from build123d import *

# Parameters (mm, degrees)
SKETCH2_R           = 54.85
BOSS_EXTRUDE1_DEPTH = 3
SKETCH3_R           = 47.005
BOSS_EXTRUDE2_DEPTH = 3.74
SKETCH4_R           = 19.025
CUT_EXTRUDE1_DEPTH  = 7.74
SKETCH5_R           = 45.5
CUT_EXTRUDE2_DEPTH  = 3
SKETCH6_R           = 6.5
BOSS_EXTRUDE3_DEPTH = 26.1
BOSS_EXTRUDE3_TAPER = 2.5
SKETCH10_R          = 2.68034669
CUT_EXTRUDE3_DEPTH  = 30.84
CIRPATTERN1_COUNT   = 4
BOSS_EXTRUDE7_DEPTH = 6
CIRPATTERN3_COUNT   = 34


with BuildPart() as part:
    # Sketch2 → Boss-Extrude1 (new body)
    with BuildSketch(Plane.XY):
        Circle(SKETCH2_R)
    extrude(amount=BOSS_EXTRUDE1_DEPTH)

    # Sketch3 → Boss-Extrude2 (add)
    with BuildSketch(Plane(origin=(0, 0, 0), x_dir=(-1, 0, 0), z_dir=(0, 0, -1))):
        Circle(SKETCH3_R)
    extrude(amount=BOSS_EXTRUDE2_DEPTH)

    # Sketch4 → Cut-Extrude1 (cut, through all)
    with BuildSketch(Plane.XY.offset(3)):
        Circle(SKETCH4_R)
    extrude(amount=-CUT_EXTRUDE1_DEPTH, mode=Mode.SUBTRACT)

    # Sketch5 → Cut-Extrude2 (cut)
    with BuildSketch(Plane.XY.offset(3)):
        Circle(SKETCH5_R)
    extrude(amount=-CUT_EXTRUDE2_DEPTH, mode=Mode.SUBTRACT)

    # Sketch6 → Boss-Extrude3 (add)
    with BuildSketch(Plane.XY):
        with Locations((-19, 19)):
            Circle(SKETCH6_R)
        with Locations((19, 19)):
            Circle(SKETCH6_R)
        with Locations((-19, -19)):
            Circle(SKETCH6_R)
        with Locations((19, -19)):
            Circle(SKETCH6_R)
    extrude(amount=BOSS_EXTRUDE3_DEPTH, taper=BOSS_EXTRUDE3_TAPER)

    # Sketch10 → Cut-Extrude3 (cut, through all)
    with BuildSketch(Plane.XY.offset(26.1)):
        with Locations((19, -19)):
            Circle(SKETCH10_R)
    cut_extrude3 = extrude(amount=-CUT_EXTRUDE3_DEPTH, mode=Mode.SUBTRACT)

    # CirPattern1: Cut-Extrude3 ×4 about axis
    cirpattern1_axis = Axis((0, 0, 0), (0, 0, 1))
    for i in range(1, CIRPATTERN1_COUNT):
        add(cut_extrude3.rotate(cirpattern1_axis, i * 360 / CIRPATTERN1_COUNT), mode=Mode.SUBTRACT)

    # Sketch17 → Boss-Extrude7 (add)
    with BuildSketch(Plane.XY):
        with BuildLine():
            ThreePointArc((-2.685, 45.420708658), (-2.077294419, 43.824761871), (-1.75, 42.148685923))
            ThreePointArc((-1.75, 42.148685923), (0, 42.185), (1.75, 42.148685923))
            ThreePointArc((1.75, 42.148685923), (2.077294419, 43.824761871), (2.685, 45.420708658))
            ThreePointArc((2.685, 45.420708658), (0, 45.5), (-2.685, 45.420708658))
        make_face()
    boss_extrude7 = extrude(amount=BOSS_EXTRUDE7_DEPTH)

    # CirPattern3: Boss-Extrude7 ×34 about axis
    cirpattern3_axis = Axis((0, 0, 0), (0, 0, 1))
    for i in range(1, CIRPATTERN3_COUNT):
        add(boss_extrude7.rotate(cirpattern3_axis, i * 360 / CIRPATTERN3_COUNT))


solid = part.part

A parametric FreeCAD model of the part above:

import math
import FreeCAD as App
import Part
import Sketcher
Q = App.Units.Quantity

doc = App.newDocument("Part")
body = doc.addObject("PartDesign::Body", "Body")

sketch1 = body.newObject("Sketcher::SketchObject", "Sketch")
sketch1.AttachmentSupport = (doc.getObject("XY_Plane"), [""])
sketch1.MapMode = "FlatFace"
sketch1.addGeometry(Part.Circle(App.Vector(0, 0, 0), App.Vector(0, 0, 1), 55), False)
sketch1.addConstraint([
    Sketcher.Constraint("Coincident", 0, 3, -1, 1),
    Sketcher.Constraint("Diameter", 0, Q("109.7 mm")),
])
pad1 = body.newObject("PartDesign::Pad", "Pad")
pad1.Profile = sketch1
pad1.Length = 3

sketch2 = body.newObject("Sketcher::SketchObject", "Sketch001")
sketch2.AttachmentSupport = (doc.getObject("XY_Plane"), [""])
sketch2.MapMode = "FlatFace"
sketch2.addGeometry(Part.Circle(App.Vector(0, 0, 0), App.Vector(0, 0, 1), 47), False)
sketch2.addConstraint([
    Sketcher.Constraint("Coincident", 0, 3, -1, 1),
    Sketcher.Constraint("Diameter", 0, Q("94.01 mm")),
])
pad2 = body.newObject("PartDesign::Pad", "Pad001")
pad2.Profile = sketch2
pad2.Length = 3.74
pad2.Reversed = True

sketch3 = body.newObject("Sketcher::SketchObject", "Sketch002")
sketch3.AttachmentSupport = (doc.getObject("XY_Plane"), [""])
sketch3.MapMode = "FlatFace"
sketch3.AttachmentOffset = App.Placement(App.Vector(0, 0, 3), App.Rotation())
sketch3.addGeometry(Part.Circle(App.Vector(0, 0, 0), App.Vector(0, 0, 1), 19), False)
sketch3.addConstraint([
    Sketcher.Constraint("Coincident", 0, 3, -1, 1),
    Sketcher.Constraint("Diameter", 0, Q("38.05 mm")),
])
pocket1 = body.newObject("PartDesign::Pocket", "Pocket")
pocket1.Profile = sketch3
pocket1.Type = "ThroughAll"

sketch4 = body.newObject("Sketcher::SketchObject", "Sketch003")
sketch4.AttachmentSupport = (doc.getObject("XY_Plane"), [""])
sketch4.MapMode = "FlatFace"
sketch4.AttachmentOffset = App.Placement(App.Vector(0, 0, 3), App.Rotation())
sketch4.addGeometry(Part.Circle(App.Vector(0, 0, 0), App.Vector(0, 0, 1), 46), False)
sketch4.addConstraint([
    Sketcher.Constraint("Coincident", 0, 3, -1, 1),
    Sketcher.Constraint("Diameter", 0, Q("91 mm")),
])
pocket2 = body.newObject("PartDesign::Pocket", "Pocket001")
pocket2.Profile = sketch4
pocket2.Length = 3

sketch5 = body.newObject("Sketcher::SketchObject", "Sketch004")
sketch5.AttachmentSupport = (doc.getObject("XY_Plane"), [""])
sketch5.MapMode = "FlatFace"
sketch5.addGeometry([
    Part.Circle(App.Vector(-19, 19, 0), App.Vector(0, 0, 1), 6),
    Part.Circle(App.Vector(19, 19, 0), App.Vector(0, 0, 1), 6),
    Part.Circle(App.Vector(-19, -19, 0), App.Vector(0, 0, 1), 6),
    Part.Circle(App.Vector(19, -19, 0), App.Vector(0, 0, 1), 6),
], False)
sketch5.addConstraint([
    Sketcher.Constraint("Equal", 0, 1),
    Sketcher.Constraint("Equal", 1, 2),
    Sketcher.Constraint("Equal", 2, 3),
    Sketcher.Constraint("Symmetric", 1, 3, 2, 3, -1, 1),
    Sketcher.Constraint("Symmetric", 0, 3, 3, 3, -1, 1),
    Sketcher.Constraint("Symmetric", 0, 3, 1, 3, -2),
    Sketcher.Constraint("Diameter", 0, Q("13 mm")),
    Sketcher.Constraint("DistanceX", 0, 3, -1, 1, Q("19 mm")),
    Sketcher.Constraint("DistanceY", -1, 1, 0, 3, Q("19 mm")),
])
pad3 = body.newObject("PartDesign::Pad", "Pad002")
pad3.Profile = sketch5
pad3.Length = 26.1
pad3.TaperAngle = -2.5

sketch6 = body.newObject("Sketcher::SketchObject", "Sketch005")
sketch6.AttachmentSupport = (doc.getObject("XY_Plane"), [""])
sketch6.MapMode = "FlatFace"
sketch6.AttachmentOffset = App.Placement(App.Vector(0, 0, 26.1), App.Rotation())
sketch6.addGeometry(Part.Circle(App.Vector(19, -19, 0), App.Vector(0, 0, 1), 2.7), False)
sketch6.addConstraint([
    Sketcher.Constraint("DistanceX", -1, 1, 0, 3, Q("19 mm")),
    Sketcher.Constraint("DistanceY", 0, 3, -1, 1, Q("19 mm")),
    Sketcher.Constraint("Diameter", 0, Q("5.360693 mm")),
])
pocket3 = body.newObject("PartDesign::Pocket", "Pocket002")
pocket3.Profile = sketch6
pocket3.Type = "ThroughAll"
doc.recompute()

polarpattern = body.newObject("PartDesign::PolarPattern", "PolarPattern")
polarpattern.Originals = [pocket3]
polarpattern.Axis = (doc.getObject("Z_Axis"), [""])
polarpattern.Angle = 360
polarpattern.Occurrences = 4
body.Tip = polarpattern

sketch7 = body.newObject("Sketcher::SketchObject", "Sketch006")
sketch7.AttachmentSupport = (doc.getObject("XY_Plane"), [""])
sketch7.MapMode = "FlatFace"
sketch7.addGeometry([
    Part.ArcOfCircle(Part.Circle(App.Vector(-11.7, 41.1, 0), App.Vector(0, 0, 1), 10), math.radians(6.15), math.radians(25.74)),
    Part.ArcOfCircle(Part.Circle(App.Vector(0, 0, 0), App.Vector(0, 0, 1), 42.2), math.radians(87.62), math.radians(92.38)),
    Part.ArcOfCircle(Part.Circle(App.Vector(11.7, 41.1, 0), App.Vector(0, 0, 1), 10), math.radians(154.26), math.radians(173.85)),
    Part.ArcOfCircle(Part.Circle(App.Vector(0, 0, 0), App.Vector(0, 0, 1), 45.5), math.radians(86.62), math.radians(93.38)),
], False)
sketch7.addConstraint([
    Sketcher.Constraint("Coincident", 0, 1, 1, 2),
    Sketcher.Constraint("Coincident", 1, 1, 2, 2),
    Sketcher.Constraint("Coincident", 2, 1, 3, 1),
    Sketcher.Constraint("Coincident", 3, 2, 0, 2),
    Sketcher.Constraint("Coincident", 1, 3, -1, 1),
    Sketcher.Constraint("Coincident", 3, 3, -1, 1),
    Sketcher.Constraint("Equal", 0, 2),
    Sketcher.Constraint("Symmetric", 0, 3, 2, 3, -2),
    Sketcher.Constraint("Radius", 0, Q("10 mm")),
    Sketcher.Constraint("Radius", 3, Q("45.5 mm")),
    Sketcher.Constraint("Radius", 1, Q("42.185 mm")),
    Sketcher.Constraint("DistanceX", 0, 1, 1, 1, Q("3.5 mm")),
    Sketcher.Constraint("DistanceX", 3, 2, 2, 1, Q("5.37 mm")),
])
pad4 = body.newObject("PartDesign::Pad", "Pad003")
pad4.Profile = sketch7
pad4.Length = 6
doc.recompute()

polarpattern2 = body.newObject("PartDesign::PolarPattern", "PolarPattern001")
polarpattern2.Originals = [pad4]
polarpattern2.Axis = (doc.getObject("Z_Axis"), [""])
polarpattern2.Angle = 360
polarpattern2.Occurrences = 34
body.Tip = polarpattern2

doc.recompute()
